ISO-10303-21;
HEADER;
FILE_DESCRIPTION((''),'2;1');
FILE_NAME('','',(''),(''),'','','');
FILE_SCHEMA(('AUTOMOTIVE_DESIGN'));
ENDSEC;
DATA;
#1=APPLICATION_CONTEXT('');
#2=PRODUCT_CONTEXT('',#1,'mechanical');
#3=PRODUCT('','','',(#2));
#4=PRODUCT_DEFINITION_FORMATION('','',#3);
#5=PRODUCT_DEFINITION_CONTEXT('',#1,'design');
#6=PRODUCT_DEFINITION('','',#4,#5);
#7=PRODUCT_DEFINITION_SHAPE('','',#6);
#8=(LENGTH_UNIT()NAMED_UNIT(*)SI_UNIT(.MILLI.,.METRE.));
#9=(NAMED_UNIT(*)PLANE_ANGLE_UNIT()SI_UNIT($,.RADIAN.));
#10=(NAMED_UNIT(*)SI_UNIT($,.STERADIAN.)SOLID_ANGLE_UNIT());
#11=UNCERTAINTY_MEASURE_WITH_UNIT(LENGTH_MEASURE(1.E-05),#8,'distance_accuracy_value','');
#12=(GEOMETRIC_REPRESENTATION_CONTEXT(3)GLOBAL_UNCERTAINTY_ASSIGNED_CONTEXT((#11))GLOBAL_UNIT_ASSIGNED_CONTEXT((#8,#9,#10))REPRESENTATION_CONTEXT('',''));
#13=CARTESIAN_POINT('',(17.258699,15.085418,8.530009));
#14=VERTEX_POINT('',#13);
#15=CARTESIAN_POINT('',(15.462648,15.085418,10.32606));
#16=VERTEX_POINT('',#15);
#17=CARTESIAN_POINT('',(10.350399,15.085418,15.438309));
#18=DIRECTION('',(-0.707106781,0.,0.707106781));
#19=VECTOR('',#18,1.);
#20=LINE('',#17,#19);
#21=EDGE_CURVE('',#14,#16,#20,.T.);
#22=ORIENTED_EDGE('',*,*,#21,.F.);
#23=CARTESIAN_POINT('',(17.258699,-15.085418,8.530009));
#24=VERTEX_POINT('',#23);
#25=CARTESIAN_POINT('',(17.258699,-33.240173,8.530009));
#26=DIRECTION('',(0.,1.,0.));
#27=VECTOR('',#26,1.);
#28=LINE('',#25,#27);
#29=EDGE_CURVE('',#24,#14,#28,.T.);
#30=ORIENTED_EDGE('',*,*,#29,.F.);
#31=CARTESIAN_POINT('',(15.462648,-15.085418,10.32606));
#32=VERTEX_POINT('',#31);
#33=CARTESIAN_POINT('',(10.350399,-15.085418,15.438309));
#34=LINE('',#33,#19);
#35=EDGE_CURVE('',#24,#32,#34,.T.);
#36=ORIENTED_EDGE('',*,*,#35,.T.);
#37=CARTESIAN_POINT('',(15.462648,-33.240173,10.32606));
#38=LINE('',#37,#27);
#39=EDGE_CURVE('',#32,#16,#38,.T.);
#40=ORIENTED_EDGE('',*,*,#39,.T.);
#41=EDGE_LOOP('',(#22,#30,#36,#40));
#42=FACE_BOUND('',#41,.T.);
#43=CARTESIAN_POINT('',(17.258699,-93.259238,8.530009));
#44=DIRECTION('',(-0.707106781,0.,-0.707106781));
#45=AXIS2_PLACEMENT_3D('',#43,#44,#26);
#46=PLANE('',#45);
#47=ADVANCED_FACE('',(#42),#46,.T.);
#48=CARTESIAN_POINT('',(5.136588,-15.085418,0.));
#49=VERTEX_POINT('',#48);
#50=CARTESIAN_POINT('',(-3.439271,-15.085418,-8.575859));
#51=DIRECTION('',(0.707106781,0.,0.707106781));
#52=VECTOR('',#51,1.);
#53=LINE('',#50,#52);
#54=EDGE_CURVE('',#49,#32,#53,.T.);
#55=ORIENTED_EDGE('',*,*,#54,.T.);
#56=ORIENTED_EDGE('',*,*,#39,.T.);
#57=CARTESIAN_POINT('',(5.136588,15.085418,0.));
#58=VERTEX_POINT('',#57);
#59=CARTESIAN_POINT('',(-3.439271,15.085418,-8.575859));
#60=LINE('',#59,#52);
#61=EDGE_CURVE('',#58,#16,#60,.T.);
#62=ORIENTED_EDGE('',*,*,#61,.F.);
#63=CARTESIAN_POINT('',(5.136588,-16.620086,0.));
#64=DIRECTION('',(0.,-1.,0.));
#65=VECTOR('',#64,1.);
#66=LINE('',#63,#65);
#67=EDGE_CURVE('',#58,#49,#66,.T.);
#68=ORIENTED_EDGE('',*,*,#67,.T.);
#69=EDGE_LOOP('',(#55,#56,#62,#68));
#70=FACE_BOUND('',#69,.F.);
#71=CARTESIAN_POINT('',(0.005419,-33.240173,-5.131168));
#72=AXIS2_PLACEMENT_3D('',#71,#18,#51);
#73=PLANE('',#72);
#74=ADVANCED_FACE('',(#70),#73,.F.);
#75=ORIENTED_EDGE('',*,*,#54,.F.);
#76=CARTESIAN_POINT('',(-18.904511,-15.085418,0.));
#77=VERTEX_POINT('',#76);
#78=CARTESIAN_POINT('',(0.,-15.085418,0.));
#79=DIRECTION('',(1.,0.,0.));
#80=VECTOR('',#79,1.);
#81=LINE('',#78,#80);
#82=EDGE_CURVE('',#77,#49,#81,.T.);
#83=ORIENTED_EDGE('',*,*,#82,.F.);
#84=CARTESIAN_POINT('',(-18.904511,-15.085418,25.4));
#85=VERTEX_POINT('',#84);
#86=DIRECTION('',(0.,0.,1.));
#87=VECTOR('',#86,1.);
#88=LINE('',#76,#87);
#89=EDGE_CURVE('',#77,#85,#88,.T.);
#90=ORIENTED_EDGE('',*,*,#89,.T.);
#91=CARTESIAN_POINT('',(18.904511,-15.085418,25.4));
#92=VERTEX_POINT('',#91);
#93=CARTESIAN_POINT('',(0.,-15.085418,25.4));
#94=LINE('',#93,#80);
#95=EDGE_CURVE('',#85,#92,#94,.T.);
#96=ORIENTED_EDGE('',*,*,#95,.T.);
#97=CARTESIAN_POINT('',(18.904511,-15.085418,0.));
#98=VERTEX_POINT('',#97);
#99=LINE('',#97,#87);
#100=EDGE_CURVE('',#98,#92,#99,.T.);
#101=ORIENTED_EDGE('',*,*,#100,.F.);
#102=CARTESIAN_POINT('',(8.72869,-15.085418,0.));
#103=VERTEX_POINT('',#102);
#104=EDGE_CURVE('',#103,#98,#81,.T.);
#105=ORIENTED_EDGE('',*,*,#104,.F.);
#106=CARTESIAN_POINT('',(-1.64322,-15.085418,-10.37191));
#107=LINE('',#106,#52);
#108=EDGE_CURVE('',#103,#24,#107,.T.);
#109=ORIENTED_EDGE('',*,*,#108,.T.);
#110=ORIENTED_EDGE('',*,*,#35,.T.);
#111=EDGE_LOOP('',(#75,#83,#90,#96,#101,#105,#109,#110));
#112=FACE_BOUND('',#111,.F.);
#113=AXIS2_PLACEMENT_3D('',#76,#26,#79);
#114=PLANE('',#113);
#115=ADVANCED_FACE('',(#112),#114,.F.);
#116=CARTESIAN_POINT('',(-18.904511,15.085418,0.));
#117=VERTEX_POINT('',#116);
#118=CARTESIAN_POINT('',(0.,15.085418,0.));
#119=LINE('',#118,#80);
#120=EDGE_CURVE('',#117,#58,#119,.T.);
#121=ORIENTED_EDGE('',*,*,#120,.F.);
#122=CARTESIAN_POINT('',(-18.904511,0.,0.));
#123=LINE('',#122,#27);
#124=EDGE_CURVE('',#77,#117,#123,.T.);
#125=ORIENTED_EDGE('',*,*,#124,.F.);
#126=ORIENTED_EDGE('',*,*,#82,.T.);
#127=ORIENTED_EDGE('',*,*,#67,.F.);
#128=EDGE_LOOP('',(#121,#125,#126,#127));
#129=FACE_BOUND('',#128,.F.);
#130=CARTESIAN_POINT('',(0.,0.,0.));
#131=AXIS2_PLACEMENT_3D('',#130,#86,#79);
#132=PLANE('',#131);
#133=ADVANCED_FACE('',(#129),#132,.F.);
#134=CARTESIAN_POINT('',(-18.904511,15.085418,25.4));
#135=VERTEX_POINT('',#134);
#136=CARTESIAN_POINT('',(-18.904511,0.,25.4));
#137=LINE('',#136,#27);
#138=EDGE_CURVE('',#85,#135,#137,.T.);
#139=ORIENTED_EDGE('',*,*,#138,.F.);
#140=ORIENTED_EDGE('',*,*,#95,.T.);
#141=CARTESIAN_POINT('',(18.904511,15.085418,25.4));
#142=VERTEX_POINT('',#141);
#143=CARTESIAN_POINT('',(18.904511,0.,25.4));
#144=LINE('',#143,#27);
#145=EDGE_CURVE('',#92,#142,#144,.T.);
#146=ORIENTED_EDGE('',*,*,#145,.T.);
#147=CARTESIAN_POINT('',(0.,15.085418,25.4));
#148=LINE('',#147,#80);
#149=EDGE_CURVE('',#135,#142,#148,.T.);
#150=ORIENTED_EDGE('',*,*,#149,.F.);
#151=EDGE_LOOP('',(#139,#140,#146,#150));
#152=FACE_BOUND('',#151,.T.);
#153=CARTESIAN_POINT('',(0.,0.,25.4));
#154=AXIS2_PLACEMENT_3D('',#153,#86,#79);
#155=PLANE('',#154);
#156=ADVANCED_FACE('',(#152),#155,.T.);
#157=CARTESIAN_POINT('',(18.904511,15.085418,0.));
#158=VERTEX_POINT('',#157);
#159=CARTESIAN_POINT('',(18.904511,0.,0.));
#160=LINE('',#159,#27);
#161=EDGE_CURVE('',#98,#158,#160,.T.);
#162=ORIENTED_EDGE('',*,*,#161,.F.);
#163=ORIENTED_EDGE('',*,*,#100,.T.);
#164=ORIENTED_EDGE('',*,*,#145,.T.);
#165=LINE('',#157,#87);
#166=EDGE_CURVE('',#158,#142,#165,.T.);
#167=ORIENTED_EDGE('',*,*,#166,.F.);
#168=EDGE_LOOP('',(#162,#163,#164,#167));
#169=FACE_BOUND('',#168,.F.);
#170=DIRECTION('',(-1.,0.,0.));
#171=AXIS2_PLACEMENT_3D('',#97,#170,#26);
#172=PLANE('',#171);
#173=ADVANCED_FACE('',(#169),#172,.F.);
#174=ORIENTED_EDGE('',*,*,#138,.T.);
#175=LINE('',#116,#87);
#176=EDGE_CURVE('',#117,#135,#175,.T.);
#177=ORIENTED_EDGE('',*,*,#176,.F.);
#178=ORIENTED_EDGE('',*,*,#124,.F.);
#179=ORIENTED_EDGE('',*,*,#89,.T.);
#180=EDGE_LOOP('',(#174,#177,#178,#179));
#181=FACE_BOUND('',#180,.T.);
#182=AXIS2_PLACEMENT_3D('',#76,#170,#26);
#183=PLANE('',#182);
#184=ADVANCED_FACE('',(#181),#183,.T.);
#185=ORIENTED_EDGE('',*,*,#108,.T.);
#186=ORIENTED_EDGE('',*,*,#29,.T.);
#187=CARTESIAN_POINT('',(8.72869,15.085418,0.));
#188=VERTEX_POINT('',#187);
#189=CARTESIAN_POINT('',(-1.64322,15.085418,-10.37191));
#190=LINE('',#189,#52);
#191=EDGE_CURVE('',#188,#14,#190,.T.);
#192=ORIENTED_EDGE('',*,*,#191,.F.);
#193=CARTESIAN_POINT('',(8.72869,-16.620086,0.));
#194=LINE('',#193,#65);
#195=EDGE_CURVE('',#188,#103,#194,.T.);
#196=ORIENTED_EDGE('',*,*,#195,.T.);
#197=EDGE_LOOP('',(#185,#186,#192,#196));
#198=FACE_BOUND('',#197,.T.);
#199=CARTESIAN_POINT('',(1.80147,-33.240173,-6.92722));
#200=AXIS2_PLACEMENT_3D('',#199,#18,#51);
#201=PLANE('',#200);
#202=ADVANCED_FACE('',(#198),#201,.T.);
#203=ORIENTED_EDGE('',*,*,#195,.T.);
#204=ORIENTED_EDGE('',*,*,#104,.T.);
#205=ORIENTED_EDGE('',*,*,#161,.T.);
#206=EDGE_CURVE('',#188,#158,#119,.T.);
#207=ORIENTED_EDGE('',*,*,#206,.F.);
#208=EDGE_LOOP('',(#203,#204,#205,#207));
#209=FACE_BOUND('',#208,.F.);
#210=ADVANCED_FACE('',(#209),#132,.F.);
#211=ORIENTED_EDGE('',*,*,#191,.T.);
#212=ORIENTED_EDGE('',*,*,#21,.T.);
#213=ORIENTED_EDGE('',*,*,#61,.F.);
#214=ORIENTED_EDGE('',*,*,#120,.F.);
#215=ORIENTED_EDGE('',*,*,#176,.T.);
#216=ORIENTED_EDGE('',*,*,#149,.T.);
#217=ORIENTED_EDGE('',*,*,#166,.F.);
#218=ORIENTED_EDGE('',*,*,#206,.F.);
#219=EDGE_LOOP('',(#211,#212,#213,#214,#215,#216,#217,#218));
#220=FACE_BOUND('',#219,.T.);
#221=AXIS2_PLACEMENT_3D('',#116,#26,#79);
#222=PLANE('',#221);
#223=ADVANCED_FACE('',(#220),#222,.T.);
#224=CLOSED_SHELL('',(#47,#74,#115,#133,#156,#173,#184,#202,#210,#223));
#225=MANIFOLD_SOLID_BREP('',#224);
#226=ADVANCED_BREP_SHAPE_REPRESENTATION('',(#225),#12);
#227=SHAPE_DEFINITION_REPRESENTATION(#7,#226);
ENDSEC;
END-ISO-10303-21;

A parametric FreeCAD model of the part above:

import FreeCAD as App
import Part
import Sketcher

V = App.Vector
Q = App.Units.Quantity


def add_polygon(sketch, points):
    """Adds a closed chain of lines whose ends are joined by coincident constraints."""
    first, n = sketch.GeometryCount, len(points)
    for a, b in zip(points, points[1:] + points[:1]):
        sketch.addGeometry(Part.LineSegment(App.Vector(*a, 0), App.Vector(*b, 0)), False)
    for i in range(n):
        sketch.addConstraint(Sketcher.Constraint("Coincident", first + i, 2, first + (i + 1) % n, 1))

doc = App.newDocument("Part")
body = doc.addObject("PartDesign::Body", "Body")

# Sketch on XY plane
sketch1 = body.newObject("Sketcher::SketchObject", "Sketch")
sketch1.AttachmentSupport = (doc.getObject("XY_Plane"), [""])
sketch1.MapMode = "FlatFace"
add_polygon(sketch1, [(-19, 15), (-19, -15), (19, -15), (19, 15)])  # lines 0-3
sketch1.addConstraint([
    Sketcher.Constraint("Vertical", 0),
    Sketcher.Constraint("Horizontal", 1),
    Sketcher.Constraint("Vertical", 2),
    Sketcher.Constraint("Horizontal", 3),
    Sketcher.Constraint("Symmetric", 0, 2, 2, 2, -1, 1),
    Sketcher.Constraint("DistanceX", 1, 1, 1, 2, Q("37.809022 mm")),
    Sketcher.Constraint("DistanceY", 0, 2, 0, 1, Q("30.170836 mm")),
])
pad1 = body.newObject("PartDesign::Pad", "Pad")
pad1.Profile = sketch1
pad1.Length = Q("1 in")
body2 = doc.addObject("PartDesign::Body", "Body001")

# Sketch on an angled plane
sketch2 = body2.newObject("Sketcher::SketchObject", "Sketch001")
sketch2.Placement = App.Placement(V(14.130645, 0, -14.130645), App.Rotation(V(0.707106781, 0, 0.707106781), V(0, 0.999999999, 0), V(-0.707106781, 0, 0.707106781), "ZXY"))
add_polygon(sketch2, [(-12, 27), (-12, -93), (32, -93), (32, 27)])  # lines 0-3
sketch2.addConstraint([
    Sketcher.Constraint("Vertical", 0),
    Sketcher.Constraint("Horizontal", 1),
    Sketcher.Constraint("Vertical", 2),
    Sketcher.Constraint("Horizontal", 3),
    Sketcher.Constraint("DistanceY", 0, 2, 0, 1, Q("120.03813 mm")),
    Sketcher.Constraint("DistanceX", 1, 1, 1, 2, Q("43.719644 mm")),
    Sketcher.Constraint("DistanceX", 0, 2, -1, 1, Q("11.67264 mm")),
    Sketcher.Constraint("DistanceY", -1, 1, 2, 2, Q("26.778892 mm")),
])
pad2 = body2.newObject("PartDesign::Pad", "Pad001")
pad2.Profile = sketch2
pad2.Length = Q("0.1 in")
body3 = doc.addObject("PartDesign::Body", "Body002")
doc.recompute()

body2.Placement = App.Placement(V(-19.5326, 0, 0), App.Rotation(V(0, 0, 1), 0))
boolean = body3.newObject("PartDesign::Boolean", "Boolean")
boolean.Type = "Fuse"
boolean.addObjects([body2])
doc.recompute()

boolean2 = body.newObject("PartDesign::Boolean", "Boolean001")
boolean2.Type = "Cut"
boolean2.addObjects([body3])

doc.recompute()
